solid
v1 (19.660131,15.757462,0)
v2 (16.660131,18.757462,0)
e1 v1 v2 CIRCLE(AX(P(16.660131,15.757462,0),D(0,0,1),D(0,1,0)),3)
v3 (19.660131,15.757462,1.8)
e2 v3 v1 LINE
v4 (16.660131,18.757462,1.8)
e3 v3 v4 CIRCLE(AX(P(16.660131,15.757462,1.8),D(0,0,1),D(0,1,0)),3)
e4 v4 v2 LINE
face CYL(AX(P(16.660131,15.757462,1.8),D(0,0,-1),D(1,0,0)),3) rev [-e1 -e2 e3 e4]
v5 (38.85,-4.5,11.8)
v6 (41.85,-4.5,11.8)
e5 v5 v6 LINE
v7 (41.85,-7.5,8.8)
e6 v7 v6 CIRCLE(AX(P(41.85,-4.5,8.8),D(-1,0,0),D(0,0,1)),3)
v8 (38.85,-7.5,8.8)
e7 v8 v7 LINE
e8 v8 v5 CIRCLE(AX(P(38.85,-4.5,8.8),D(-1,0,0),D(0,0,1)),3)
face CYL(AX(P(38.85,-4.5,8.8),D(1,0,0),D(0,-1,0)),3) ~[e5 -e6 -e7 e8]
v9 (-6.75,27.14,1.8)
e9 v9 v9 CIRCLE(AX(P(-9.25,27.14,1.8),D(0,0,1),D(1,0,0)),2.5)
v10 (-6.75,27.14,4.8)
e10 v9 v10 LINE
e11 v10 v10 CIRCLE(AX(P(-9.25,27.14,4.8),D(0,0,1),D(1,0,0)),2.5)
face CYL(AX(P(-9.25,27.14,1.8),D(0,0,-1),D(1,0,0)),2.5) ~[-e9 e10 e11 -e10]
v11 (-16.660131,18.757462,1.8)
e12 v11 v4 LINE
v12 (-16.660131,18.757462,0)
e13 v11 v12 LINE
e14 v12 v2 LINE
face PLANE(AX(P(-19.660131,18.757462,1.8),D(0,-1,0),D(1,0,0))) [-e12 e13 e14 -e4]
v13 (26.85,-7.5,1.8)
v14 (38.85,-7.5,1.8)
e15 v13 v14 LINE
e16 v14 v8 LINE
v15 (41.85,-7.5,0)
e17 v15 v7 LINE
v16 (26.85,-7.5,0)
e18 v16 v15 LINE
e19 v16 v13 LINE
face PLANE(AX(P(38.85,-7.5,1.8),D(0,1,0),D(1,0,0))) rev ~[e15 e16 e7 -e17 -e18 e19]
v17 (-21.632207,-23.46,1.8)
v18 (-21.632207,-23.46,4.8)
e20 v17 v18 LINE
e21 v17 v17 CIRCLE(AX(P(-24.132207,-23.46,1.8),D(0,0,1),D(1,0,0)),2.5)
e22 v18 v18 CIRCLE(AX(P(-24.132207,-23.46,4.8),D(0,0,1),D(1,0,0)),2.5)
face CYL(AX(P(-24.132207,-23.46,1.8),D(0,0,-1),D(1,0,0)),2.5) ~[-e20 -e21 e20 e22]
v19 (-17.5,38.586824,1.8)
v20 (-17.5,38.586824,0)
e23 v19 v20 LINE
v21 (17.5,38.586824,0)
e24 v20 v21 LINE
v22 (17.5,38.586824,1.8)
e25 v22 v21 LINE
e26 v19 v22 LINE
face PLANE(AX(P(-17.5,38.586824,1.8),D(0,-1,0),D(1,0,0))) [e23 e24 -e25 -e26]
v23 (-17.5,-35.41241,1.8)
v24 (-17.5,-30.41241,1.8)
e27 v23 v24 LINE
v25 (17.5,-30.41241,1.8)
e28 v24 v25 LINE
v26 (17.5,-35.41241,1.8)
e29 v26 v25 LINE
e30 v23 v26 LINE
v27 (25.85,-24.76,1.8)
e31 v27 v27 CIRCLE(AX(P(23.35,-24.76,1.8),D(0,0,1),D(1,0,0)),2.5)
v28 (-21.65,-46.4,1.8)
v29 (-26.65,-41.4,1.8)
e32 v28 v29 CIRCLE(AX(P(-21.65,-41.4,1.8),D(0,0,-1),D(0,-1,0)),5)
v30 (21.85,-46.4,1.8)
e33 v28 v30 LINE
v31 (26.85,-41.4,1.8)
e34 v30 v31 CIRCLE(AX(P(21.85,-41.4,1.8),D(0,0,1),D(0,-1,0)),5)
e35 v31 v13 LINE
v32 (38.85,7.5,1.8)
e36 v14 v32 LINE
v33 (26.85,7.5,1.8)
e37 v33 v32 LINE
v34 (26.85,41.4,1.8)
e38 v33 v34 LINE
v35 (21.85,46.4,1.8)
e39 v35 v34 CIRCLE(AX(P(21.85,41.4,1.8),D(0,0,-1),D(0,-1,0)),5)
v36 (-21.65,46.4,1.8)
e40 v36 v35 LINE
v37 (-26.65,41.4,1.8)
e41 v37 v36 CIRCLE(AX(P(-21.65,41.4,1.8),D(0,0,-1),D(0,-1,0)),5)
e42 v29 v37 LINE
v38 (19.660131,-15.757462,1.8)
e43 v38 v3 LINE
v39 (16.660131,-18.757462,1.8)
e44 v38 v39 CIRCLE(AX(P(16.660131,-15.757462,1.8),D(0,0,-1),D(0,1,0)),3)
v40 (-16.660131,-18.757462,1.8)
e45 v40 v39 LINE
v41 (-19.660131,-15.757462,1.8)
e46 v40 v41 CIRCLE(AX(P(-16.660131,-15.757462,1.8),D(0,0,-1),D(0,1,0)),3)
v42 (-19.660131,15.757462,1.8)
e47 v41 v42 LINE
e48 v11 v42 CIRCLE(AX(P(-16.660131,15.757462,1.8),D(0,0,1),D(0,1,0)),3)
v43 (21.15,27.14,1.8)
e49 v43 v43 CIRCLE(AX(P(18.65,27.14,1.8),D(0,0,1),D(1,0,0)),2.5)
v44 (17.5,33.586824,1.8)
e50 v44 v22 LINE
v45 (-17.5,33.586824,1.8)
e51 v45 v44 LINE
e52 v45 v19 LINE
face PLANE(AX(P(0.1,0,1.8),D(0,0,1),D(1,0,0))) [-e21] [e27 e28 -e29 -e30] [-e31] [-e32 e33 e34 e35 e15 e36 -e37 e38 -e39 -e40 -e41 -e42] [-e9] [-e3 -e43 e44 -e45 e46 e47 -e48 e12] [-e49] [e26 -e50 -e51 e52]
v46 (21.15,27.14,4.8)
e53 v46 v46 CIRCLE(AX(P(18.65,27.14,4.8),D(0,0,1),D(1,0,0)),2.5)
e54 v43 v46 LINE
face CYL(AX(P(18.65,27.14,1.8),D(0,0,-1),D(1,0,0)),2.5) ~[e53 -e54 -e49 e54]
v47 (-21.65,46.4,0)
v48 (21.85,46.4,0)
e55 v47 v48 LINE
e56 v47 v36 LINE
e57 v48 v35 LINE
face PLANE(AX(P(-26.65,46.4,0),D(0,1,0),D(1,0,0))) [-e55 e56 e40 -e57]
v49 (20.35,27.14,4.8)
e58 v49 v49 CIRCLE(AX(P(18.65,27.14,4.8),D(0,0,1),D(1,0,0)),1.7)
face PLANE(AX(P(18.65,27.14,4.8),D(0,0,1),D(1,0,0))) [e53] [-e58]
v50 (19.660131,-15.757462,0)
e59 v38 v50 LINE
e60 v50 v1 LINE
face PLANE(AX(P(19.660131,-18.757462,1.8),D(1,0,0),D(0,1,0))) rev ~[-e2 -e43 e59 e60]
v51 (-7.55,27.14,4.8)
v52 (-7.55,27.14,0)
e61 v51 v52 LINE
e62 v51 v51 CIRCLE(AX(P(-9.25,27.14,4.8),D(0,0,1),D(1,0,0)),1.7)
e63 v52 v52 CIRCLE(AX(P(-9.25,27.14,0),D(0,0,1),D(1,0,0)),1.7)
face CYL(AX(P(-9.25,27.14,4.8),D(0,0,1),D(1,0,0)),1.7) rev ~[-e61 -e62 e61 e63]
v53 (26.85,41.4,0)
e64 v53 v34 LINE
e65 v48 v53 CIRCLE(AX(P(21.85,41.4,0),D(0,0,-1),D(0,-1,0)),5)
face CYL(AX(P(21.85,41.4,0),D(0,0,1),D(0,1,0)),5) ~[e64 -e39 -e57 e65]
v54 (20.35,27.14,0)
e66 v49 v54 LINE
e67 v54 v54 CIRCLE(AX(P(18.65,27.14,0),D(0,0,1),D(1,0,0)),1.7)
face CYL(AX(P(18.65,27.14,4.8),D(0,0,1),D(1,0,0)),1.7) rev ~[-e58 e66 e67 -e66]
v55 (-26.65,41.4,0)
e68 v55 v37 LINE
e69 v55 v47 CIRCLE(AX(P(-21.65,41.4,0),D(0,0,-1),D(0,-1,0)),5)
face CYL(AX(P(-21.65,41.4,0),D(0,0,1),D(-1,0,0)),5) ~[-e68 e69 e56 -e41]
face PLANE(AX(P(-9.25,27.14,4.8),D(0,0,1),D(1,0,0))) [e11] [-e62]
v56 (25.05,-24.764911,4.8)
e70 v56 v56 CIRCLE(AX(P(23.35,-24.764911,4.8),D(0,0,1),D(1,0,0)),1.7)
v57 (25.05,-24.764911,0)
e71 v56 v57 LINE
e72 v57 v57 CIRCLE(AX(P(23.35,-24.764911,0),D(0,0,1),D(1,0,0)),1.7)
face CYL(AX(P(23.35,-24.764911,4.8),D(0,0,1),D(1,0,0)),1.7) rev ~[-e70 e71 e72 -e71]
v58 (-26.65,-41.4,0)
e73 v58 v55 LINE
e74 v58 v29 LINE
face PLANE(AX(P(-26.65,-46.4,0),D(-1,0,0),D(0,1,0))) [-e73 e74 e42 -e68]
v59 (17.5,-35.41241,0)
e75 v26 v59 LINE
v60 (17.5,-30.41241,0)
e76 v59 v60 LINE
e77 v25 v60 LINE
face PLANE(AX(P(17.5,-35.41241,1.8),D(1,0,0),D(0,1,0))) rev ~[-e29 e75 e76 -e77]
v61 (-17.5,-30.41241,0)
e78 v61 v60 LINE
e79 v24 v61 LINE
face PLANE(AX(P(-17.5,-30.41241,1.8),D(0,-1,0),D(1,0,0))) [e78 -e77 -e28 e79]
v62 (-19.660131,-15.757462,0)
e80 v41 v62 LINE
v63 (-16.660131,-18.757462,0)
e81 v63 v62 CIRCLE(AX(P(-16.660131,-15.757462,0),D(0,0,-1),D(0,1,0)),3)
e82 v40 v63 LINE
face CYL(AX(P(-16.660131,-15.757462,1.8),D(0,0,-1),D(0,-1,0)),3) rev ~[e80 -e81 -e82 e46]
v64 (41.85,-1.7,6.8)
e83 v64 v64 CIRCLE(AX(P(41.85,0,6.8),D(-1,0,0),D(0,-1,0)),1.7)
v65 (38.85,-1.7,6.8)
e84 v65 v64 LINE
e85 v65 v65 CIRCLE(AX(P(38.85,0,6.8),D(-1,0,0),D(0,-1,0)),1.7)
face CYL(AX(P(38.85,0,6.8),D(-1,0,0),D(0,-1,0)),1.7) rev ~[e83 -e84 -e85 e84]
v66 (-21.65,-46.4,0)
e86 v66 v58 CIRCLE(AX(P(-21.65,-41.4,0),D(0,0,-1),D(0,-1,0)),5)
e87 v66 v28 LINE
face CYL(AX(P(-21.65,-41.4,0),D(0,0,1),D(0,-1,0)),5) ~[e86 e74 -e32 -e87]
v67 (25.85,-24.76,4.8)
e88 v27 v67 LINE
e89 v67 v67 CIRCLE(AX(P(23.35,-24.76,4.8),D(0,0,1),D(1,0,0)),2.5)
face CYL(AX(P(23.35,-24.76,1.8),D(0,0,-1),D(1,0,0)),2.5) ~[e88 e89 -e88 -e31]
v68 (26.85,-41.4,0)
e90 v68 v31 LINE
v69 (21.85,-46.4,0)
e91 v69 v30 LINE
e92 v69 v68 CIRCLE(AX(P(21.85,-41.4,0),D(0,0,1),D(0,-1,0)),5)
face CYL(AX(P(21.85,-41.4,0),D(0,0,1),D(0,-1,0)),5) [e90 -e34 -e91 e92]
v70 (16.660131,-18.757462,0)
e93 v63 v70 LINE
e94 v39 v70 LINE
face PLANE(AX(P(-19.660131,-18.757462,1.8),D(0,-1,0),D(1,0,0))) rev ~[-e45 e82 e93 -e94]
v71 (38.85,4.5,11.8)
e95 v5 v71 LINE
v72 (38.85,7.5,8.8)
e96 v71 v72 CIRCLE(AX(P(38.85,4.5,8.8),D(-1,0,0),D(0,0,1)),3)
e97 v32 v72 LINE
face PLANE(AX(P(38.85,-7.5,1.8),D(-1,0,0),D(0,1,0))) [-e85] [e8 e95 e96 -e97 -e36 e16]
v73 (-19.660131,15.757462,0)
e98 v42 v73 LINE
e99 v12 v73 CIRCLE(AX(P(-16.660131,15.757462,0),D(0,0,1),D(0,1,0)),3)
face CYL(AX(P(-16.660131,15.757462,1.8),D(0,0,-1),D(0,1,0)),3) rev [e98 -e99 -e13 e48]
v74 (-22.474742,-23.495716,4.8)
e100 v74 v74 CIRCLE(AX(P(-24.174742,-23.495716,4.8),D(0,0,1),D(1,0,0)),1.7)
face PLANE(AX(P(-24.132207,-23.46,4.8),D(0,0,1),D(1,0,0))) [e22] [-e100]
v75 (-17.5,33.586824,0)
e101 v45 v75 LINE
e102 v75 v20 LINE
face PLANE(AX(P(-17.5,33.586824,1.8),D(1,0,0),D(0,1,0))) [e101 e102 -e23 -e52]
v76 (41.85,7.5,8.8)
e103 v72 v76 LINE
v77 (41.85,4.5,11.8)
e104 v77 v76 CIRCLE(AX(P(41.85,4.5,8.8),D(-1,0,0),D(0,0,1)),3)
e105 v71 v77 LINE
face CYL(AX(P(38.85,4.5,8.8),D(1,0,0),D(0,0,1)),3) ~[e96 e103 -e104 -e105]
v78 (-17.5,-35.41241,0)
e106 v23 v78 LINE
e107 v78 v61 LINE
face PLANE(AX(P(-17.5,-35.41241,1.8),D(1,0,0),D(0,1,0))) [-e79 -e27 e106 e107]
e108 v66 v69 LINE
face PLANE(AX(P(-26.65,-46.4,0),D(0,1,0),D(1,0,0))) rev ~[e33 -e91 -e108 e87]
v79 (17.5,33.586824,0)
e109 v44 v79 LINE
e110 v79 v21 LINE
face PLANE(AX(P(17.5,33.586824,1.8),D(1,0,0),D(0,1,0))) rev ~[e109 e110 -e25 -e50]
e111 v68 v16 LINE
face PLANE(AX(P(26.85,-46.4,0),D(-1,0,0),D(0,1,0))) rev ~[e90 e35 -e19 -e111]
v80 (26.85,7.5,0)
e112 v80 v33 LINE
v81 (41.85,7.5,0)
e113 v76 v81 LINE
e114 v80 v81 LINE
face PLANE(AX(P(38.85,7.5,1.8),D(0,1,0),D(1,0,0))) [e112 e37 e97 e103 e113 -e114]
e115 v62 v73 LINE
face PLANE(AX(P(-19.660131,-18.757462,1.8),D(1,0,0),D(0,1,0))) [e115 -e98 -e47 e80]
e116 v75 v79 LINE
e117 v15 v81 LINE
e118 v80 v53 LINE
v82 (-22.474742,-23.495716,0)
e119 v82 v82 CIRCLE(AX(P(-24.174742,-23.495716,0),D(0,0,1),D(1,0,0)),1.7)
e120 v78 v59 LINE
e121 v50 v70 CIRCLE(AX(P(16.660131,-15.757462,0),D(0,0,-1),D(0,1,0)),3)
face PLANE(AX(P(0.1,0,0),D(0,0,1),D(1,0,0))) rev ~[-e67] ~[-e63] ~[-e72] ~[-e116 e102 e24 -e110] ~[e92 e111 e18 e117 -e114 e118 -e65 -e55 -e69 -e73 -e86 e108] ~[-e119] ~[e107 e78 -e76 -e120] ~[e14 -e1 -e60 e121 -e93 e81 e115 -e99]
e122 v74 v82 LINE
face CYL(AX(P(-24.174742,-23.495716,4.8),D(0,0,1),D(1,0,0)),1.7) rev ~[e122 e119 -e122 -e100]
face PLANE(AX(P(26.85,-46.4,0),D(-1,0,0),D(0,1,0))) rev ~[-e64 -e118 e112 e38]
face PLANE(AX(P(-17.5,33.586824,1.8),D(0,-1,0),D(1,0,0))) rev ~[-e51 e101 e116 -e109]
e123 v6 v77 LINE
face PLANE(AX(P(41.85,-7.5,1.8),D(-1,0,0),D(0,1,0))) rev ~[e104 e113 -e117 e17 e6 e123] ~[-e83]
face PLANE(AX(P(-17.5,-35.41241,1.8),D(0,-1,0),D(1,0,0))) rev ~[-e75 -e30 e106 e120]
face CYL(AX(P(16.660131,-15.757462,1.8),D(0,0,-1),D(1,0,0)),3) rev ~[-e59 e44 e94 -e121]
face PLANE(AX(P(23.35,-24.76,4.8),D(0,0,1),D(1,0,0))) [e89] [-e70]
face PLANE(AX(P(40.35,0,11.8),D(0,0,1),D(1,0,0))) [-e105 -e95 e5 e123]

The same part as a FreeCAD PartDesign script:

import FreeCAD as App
import Part
import Sketcher
Q = App.Units.Quantity


def edges_at(feature, points):
    """Names of the edges that pass closest to the given points."""
    edges = feature.Shape.Edges
    near = lambda p: min(range(len(edges)), key=lambda i: edges[i].distToShape(Part.Vertex(*p))[0])
    return sorted({f"Edge{near(p) + 1}" for p in points})


def add_polygon(sketch, points):
    """Adds a closed chain of lines whose ends are joined by coincident constraints."""
    first, n = sketch.GeometryCount, len(points)
    for a, b in zip(points, points[1:] + points[:1]):
        sketch.addGeometry(Part.LineSegment(App.Vector(*a, 0), App.Vector(*b, 0)), False)
    for i in range(n):
        sketch.addConstraint(Sketcher.Constraint("Coincident", first + i, 2, first + (i + 1) % n, 1))

doc = App.newDocument("Part")
body = doc.addObject("PartDesign::Body", "Body")

sketch1 = body.newObject("Sketcher::SketchObject", "Sketch")
sketch1.AttachmentSupport = (doc.getObject("XY_Plane"), [""])
sketch1.MapMode = "FlatFace"
add_polygon(sketch1, [(-27, 46), (-27, -46), (27, -46), (27, 46)])
sketch1.addConstraint([
    Sketcher.Constraint("Vertical", 0),
    Sketcher.Constraint("Horizontal", 1),
    Sketcher.Constraint("Vertical", 2),
    Sketcher.Constraint("Horizontal", 3),
    Sketcher.Constraint("DistanceX", 1, 1, 1, 2, Q("53.5 mm")),
    Sketcher.Constraint("DistanceY", 0, 2, 0, 1, Q("92.8 mm")),
    Sketcher.Constraint("DistanceY", 0, 2, -1, 1, Q("46.4 mm")),
    Sketcher.Constraint("DistanceX", 0, 2, -1, 1, Q("26.65 mm")),
])
pad1 = body.newObject("PartDesign::Pad", "Pad")
pad1.Profile = sketch1
pad1.Length = 1.8

sketch2 = body.newObject("Sketcher::SketchObject", "Sketch001")
sketch2.AttachmentSupport = (doc.getObject("XY_Plane"), [""])
sketch2.MapMode = "FlatFace"
sketch2.AttachmentOffset = App.Placement(App.Vector(0, 0, 1.8), App.Rotation())
sketch2.addGeometry([
    Part.Circle(App.Vector(-9.2, 27.1, 0), App.Vector(0, 0, 1), 2.5),
    Part.Circle(App.Vector(18.6, 27.1, 0), App.Vector(0, 0, 1), 2.5),
    Part.Circle(App.Vector(-24.1, -23.5, 0), App.Vector(0, 0, 1), 2.5),
    Part.Circle(App.Vector(23.4, -24.8, 0), App.Vector(0, 0, 1), 2.5),
], False)
sketch2.addConstraint([
    Sketcher.Constraint("Equal", 0, 1),
    Sketcher.Constraint("Equal", 1, 2),
    Sketcher.Constraint("Equal", 2, 3),
    Sketcher.Constraint("Horizontal", 0, 3, 1, 3),
    Sketcher.Constraint("Diameter", 0, Q("5 mm")),
    Sketcher.Constraint("DistanceX", 0, 3, 1, 3, Q("27.9 mm")),
    Sketcher.Constraint("DistanceY", 2, 3, 0, 3, Q("50.6 mm")),
    Sketcher.Constraint("DistanceY", 3, 3, 2, 3, Q("1.3 mm")),
    Sketcher.Constraint("DistanceX", 1, 3, 3, 3, Q("4.7 mm")),
    Sketcher.Constraint("DistanceX", 0, 3, -1, 1, Q("9.25 mm")),
    Sketcher.Constraint("DistanceY", -1, 1, 0, 3, Q("27.14 mm")),
    Sketcher.Constraint("DistanceX", 2, 3, -1, 1, Q("24.132207 mm")),
])
pad2 = body.newObject("PartDesign::Pad", "Pad001")
pad2.Profile = sketch2
pad2.Length = 3

sketch3 = body.newObject("Sketcher::SketchObject", "Sketch002")
sketch3.AttachmentSupport = (doc.getObject("XY_Plane"), [""])
sketch3.MapMode = "FlatFace"
sketch3.AttachmentOffset = App.Placement(App.Vector(0, 0, 4.8), App.Rotation())
sketch3.addGeometry([
    Part.Circle(App.Vector(-24.2, -23.5, 0), App.Vector(0, 0, 1), 1.7),
    Part.Circle(App.Vector(-9.2, 27.1, 0), App.Vector(0, 0, 1), 1.7),
    Part.Circle(App.Vector(18.6, 27.1, 0), App.Vector(0, 0, 1), 1.7),
    Part.Circle(App.Vector(23.4, -24.8, 0), App.Vector(0, 0, 1), 1.7),
], False)
sketch3.addConstraint([
    Sketcher.Constraint("Equal", 0, 1),
    Sketcher.Constraint("Equal", 1, 2),
    Sketcher.Constraint("Equal", 2, 3),
    Sketcher.Constraint("Horizontal", 1, 3, 2, 3),
    Sketcher.Constraint("Diameter", 0, Q("3.4 mm")),
    Sketcher.Constraint("DistanceX", 1, 3, 2, 3, Q("27.9 mm")),
    Sketcher.Constraint("DistanceX", 2, 3, 3, 3, Q("4.7 mm")),
    Sketcher.Constraint("DistanceX", 1, 3, -1, 1, Q("9.25 mm")),
    Sketcher.Constraint("DistanceY", -1, 1, 1, 3, Q("27.14 mm")),
    Sketcher.Constraint("DistanceX", 0, 3, -1, 1, Q("24.174742 mm")),
    Sketcher.Constraint("DistanceY", 3, 3, -1, 1, Q("24.764911 mm")),
    Sketcher.Constraint("DistanceY", 0, 3, -1, 1, Q("23.495716 mm")),
])
pocket1 = body.newObject("PartDesign::Pocket", "Pocket")
pocket1.Profile = sketch3
pocket1.Length = 5

sketch4 = body.newObject("Sketcher::SketchObject", "Sketch003")
sketch4.AttachmentSupport = (doc.getObject("YZ_Plane"), [""])
sketch4.MapMode = "FlatFace"
sketch4.AttachmentOffset = App.Placement(App.Vector(0, 0, 26.85), App.Rotation())
add_polygon(sketch4, [(-7.5, 1.8), (-7.5, 0), (7.5, 0), (7.5, 1.8)])
sketch4.addConstraint([
    Sketcher.Constraint("Vertical", 0),
    Sketcher.Constraint("Horizontal", 1),
    Sketcher.Constraint("Vertical", 2),
    Sketcher.Constraint("Horizontal", 3),
    Sketcher.Constraint("Symmetric", 0, 2, 1, 2, -1, 1),
    Sketcher.Constraint("DistanceX", 1, 1, 1, 2, Q("15 mm")),
    Sketcher.Constraint("DistanceY", 0, 2, 0, 1, Q("1.8 mm")),
])
pad3 = body.newObject("PartDesign::Pad", "Pad002")
pad3.Profile = sketch4
pad3.Length = 15

sketch5 = body.newObject("Sketcher::SketchObject", "Sketch004")
sketch5.AttachmentSupport = (doc.getObject("XY_Plane"), [""])
sketch5.MapMode = "FlatFace"
sketch5.AttachmentOffset = App.Placement(App.Vector(0, 0, 1.8), App.Rotation())
add_polygon(sketch5, [(-20, 19), (-20, -19), (20, -19), (20, 19)])
sketch5.addConstraint([
    Sketcher.Constraint("Vertical", 0),
    Sketcher.Constraint("Horizontal", 1),
    Sketcher.Constraint("Vertical", 2),
    Sketcher.Constraint("Horizontal", 3),
    Sketcher.Constraint("Symmetric", 0, 2, 2, 2, -1, 1),
    Sketcher.Constraint("DistanceX", 1, 1, 1, 2, Q("39.320262 mm")),
    Sketcher.Constraint("DistanceY", 0, 2, 0, 1, Q("37.514924 mm")),
])
pocket2 = body.newObject("PartDesign::Pocket", "Pocket001")
pocket2.Profile = sketch5
pocket2.Length = 5
doc.recompute()

fillet = body.newObject("PartDesign::Fillet", "Fillet")
fillet.Base = (pocket2, edges_at(pocket2, [(-26.65, 46.4, 0.9)]))
fillet.Radius = 5
doc.recompute()

fillet2 = body.newObject("PartDesign::Fillet", "Fillet001")
fillet2.Base = (fillet, edges_at(fillet, [(26.85, -46.4, 0.9)]))
fillet2.Radius = 5

sketch6 = body.newObject("Sketcher::SketchObject", "Sketch005")
sketch6.AttachmentSupport = (doc.getObject("XY_Plane"), [""])
sketch6.MapMode = "FlatFace"
sketch6.AttachmentOffset = App.Placement(App.Vector(0, 0, 1.8), App.Rotation())
add_polygon(sketch6, [(-18, -30), (-18, -35), (18, -35), (18, -30)])
add_polygon(sketch6, [(-18, 39), (-18, 34), (18, 34), (18, 39)])
sketch6.addConstraint([
    Sketcher.Constraint("Vertical", 0),
    Sketcher.Constraint("Horizontal", 1),
    Sketcher.Constraint("Vertical", 2),
    Sketcher.Constraint("Horizontal", 3),
    Sketcher.Constraint("Vertical", 4),
    Sketcher.Constraint("Horizontal", 5),
    Sketcher.Constraint("Vertical", 6),
    Sketcher.Constraint("Horizontal", 7),
    Sketcher.Constraint("Vertical", 3, 2, 4, 2),
    Sketcher.Constraint("Vertical", 2, 2, 5, 2),
    Sketcher.Constraint("Equal", 2, 4),
    Sketcher.Constraint("DistanceX", 1, 1, 1, 2, Q("35 mm")),
    Sketcher.Constraint("DistanceY", 0, 2, 0, 1, Q("5 mm")),
    Sketcher.Constraint("DistanceX", 0, 2, -1, 1, Q("17.5 mm")),
    Sketcher.Constraint("DistanceY", 0, 2, -1, 1, Q("35.41241 mm")),
    Sketcher.Constraint("DistanceY", -1, 1, 4, 2, Q("33.586824 mm")),
])
pocket3 = body.newObject("PartDesign::Pocket", "Pocket002")
pocket3.Profile = sketch6
pocket3.Length = 5

sketch7 = body.newObject("Sketcher::SketchObject", "Sketch006")
sketch7.AttachmentSupport = (doc.getObject("XY_Plane"), [""])
sketch7.MapMode = "FlatFace"
sketch7.AttachmentOffset = App.Placement(App.Vector(0, 0, 1.8), App.Rotation())
add_polygon(sketch7, [(38.9, 7.5), (38.9, -7.5), (41.9, -7.5), (41.9, 7.5)])
sketch7.addConstraint([
    Sketcher.Constraint("Vertical", 0),
    Sketcher.Constraint("Horizontal", 1),
    Sketcher.Constraint("Vertical", 2),
    Sketcher.Constraint("Horizontal", 3),
    Sketcher.Constraint("DistanceX", 1, 1, 1, 2, Q("3 mm")),
    Sketcher.Constraint("DistanceY", 0, 2, 0, 1, Q("15 mm")),
    Sketcher.Constraint("DistanceY", 0, 2, -1, 1, Q("7.5 mm")),
    Sketcher.Constraint("DistanceX", -1, 1, 0, 2, Q("38.85 mm")),
])
pad4 = body.newObject("PartDesign::Pad", "Pad003")
pad4.Profile = sketch7
pad4.Length = 10

sketch8 = body.newObject("Sketcher::SketchObject", "Sketch007")
sketch8.AttachmentSupport = (doc.getObject("YZ_Plane"), [""])
sketch8.MapMode = "FlatFace"
sketch8.AttachmentOffset = App.Placement(App.Vector(0, 0, 38.85), App.Rotation())
sketch8.addGeometry(Part.Circle(App.Vector(0, 6.8, 0), App.Vector(0, 0, 1), 1.7), False)
sketch8.addConstraint([
    Sketcher.Constraint("PointOnObject", 0, 3, -2),
    Sketcher.Constraint("Diameter", 0, Q("3.4 mm")),
    Sketcher.Constraint("DistanceY", -1, 1, 0, 3, Q("6.8 mm")),
])
pocket4 = body.newObject("PartDesign::Pocket", "Pocket003")
pocket4.Profile = sketch8
pocket4.Length = 5
pocket4.Reversed = True
doc.recompute()

fillet3 = body.newObject("PartDesign::Fillet", "Fillet002")
fillet3.Base = (pocket4, edges_at(pocket4, [(-26.65, -46.4, 0.9)]))
fillet3.Radius = 5
doc.recompute()

fillet4 = body.newObject("PartDesign::Fillet", "Fillet003")
fillet4.Base = (fillet3, edges_at(fillet3, [(26.85, 46.4, 0.9)]))
fillet4.Radius = 5
doc.recompute()

fillet5 = body.newObject("PartDesign::Fillet", "Fillet004")
fillet5.Base = (fillet4, edges_at(fillet4, [(40.35, -7.5, 11.8)]))
fillet5.Radius = 3
doc.recompute()

fillet6 = body.newObject("PartDesign::Fillet", "Fillet005")
fillet6.Base = (fillet5, edges_at(fillet5, [(40.35, 7.5, 11.8)]))
fillet6.Radius = 3
doc.recompute()

fillet7 = body.newObject("PartDesign::Fillet", "Fillet006")
fillet7.Base = (fillet6, edges_at(fillet6, [(19.66, 18.757, 0.9)]))
fillet7.Radius = 3
doc.recompute()

fillet8 = body.newObject("PartDesign::Fillet", "Fillet007")
fillet8.Base = (fillet7, edges_at(fillet7, [(-19.66, 18.757, 0.9)]))
fillet8.Radius = 3
doc.recompute()

fillet9 = body.newObject("PartDesign::Fillet", "Fillet008")
fillet9.Base = (fillet8, edges_at(fillet8, [(19.66, -18.757, 0.9)]))
fillet9.Radius = 3
doc.recompute()

fillet10 = body.newObject("PartDesign::Fillet", "Fillet009")
fillet10.Base = (fillet9, edges_at(fillet9, [(-19.66, -18.757, 0.9)]))
fillet10.Radius = 3

doc.recompute()
